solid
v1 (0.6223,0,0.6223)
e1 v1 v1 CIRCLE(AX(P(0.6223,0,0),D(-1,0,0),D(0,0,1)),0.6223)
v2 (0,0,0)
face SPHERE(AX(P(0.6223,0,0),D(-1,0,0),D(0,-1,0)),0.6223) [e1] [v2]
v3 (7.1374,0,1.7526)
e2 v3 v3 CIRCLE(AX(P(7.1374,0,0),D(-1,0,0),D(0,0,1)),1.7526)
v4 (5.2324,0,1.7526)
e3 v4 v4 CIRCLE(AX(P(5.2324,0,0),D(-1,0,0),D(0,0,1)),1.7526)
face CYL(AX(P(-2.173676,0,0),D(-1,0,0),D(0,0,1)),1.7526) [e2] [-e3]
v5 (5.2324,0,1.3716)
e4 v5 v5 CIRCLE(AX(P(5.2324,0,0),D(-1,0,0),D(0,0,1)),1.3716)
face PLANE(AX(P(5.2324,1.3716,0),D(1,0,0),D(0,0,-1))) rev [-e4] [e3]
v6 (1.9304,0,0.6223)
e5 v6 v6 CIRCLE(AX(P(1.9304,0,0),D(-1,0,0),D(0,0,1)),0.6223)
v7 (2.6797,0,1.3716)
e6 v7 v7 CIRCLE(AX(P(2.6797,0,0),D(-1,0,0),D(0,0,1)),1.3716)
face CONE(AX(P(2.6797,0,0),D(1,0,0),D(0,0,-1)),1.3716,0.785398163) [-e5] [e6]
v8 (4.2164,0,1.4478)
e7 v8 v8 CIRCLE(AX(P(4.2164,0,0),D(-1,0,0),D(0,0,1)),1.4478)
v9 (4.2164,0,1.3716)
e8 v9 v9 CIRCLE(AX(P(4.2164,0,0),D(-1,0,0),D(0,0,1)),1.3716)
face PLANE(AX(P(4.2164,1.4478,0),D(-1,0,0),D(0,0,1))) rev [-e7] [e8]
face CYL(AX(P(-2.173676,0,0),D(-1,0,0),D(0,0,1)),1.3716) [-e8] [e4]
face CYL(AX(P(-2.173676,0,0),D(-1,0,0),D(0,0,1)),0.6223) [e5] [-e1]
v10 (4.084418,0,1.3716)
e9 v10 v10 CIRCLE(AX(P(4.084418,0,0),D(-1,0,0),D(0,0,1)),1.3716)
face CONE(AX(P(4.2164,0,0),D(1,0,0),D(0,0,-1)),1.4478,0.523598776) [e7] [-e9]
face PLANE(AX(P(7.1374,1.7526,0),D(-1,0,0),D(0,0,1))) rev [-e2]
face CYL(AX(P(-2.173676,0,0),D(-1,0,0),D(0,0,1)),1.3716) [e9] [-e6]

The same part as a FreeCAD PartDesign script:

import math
import FreeCAD as App
import Part
import Sketcher

V = App.Vector
Q = App.Units.Quantity

doc = App.newDocument("Part")
body = doc.addObject("PartDesign::Body", "Body")

sketch1 = body.newObject("Sketcher::SketchObject", "Sketch")
sketch1.AttachmentSupport = (doc.getObject("XY_Plane"), [""])
sketch1.MapMode = "FlatFace"
sketch1.addGeometry([
    Part.LineSegment(V(0, 0.62, 0), V(0, 0, 0)),
    Part.LineSegment(V(0, 0, 0), V(7.14, 0, 0)),
    Part.LineSegment(V(7.14, 0, 0), V(7.14, 1.75, 0)),
    Part.LineSegment(V(7.14, 1.75, 0), V(5.23, 1.75, 0)),
    Part.LineSegment(V(5.23, 1.75, 0), V(5.23, 1.37, 0)),
    Part.LineSegment(V(5.23, 1.37, 0), V(4.22, 1.37, 0)),
    Part.LineSegment(V(4.22, 1.37, 0), V(4.22, 1.45, 0)),
    Part.LineSegment(V(4.22, 1.45, 0), V(4.08, 1.37, 0)),
    Part.LineSegment(V(4.08, 1.37, 0), V(2.68, 1.37, 0)),
    Part.LineSegment(V(2.68, 1.37, 0), V(1.93, 0.62, 0)),
    Part.LineSegment(V(1.93, 0.62, 0), V(0, 0.62, 0)),
], False)
sketch1.addConstraint([
    Sketcher.Constraint("Coincident", 0, 2, 1, 1),
    Sketcher.Constraint("Coincident", 1, 2, 2, 1),
    Sketcher.Constraint("Coincident", 2, 2, 3, 1),
    Sketcher.Constraint("Coincident", 3, 2, 4, 1),
    Sketcher.Constraint("Coincident", 4, 2, 5, 1),
    Sketcher.Constraint("Coincident", 5, 2, 6, 1),
    Sketcher.Constraint("Coincident", 6, 2, 7, 1),
    Sketcher.Constraint("Coincident", 7, 2, 8, 1),
    Sketcher.Constraint("Coincident", 8, 2, 9, 1),
    Sketcher.Constraint("Coincident", 9, 2, 10, 1),
    Sketcher.Constraint("Coincident", 10, 2, 0, 1),
    Sketcher.Constraint("Vertical", 0),
    Sketcher.Constraint("Horizontal", 1),
    Sketcher.Constraint("Vertical", 2),
    Sketcher.Constraint("Horizontal", 3),
    Sketcher.Constraint("Vertical", 4),
    Sketcher.Constraint("Horizontal", 5),
    Sketcher.Constraint("Vertical", 6),
    Sketcher.Constraint("Horizontal", 8),
    Sketcher.Constraint("Horizontal", 10),
    Sketcher.Constraint("Coincident", 0, 2, -1, 1),
    Sketcher.Constraint("Horizontal", 5, 2, 7, 2),
    Sketcher.Constraint("Angle", 7, Q("-150 deg")),
    Sketcher.Constraint("Angle", 9, Q("-135 deg")),
    Sketcher.Constraint("DistanceX", 5, 2, 5, 1, Q("0.04 in")),
    Sketcher.Constraint("DistanceX", 1, 1, 1, 2, Q("0.281 in")),
    Sketcher.Constraint("DistanceX", 3, 2, 3, 1, Q("0.075 in")),
    Sketcher.Constraint("DistanceX", 10, 2, 10, 1, Q("0.076 in")),
    Sketcher.Constraint("DistanceY", 2, 1, 2, 2, Q("0.069 in")),
    Sketcher.Constraint("DistanceY", 4, 2, 4, 1, Q("0.015 in")),
    Sketcher.Constraint("DistanceY", 6, 1, 6, 2, Q("0.003 in")),
    Sketcher.Constraint("DistanceY", 0, 2, 0, 1, Q("0.0245 in")),
])
revolution = body.newObject("PartDesign::Revolution", "Revolution")
revolution.Profile = sketch1
revolution.ReferenceAxis = (sketch1, ["H_Axis"])
revolution.Angle = 360

sketch2 = body.newObject("Sketcher::SketchObject", "Sketch001")
sketch2.AttachmentSupport = (doc.getObject("XY_Plane"), [""])
sketch2.MapMode = "FlatFace"
sketch2.addGeometry([
    Part.LineSegment(V(0.62, 0.62, 0), V(-0.24, 0.62, 0)),
    Part.LineSegment(V(-0.24, 0.62, 0), V(-0.24, 0, 0)),
    Part.LineSegment(V(-0.24, 0, 0), V(0, 0, 0)),
    Part.ArcOfCircle(Part.Circle(V(0.62, 0, 0), V(0, 0, 1), 0.62), math.radians(90), math.radians(180)),
], False)
sketch2.addConstraint([
    Sketcher.Constraint("Coincident", 0, 2, 1, 1),
    Sketcher.Constraint("Coincident", 1, 2, 2, 1),
    Sketcher.Constraint("Coincident", 2, 2, 3, 2),
    Sketcher.Constraint("Tangent", 3, 1, 0, 1),
    Sketcher.Constraint("Horizontal", 0),
    Sketcher.Constraint("Vertical", 1),
    Sketcher.Constraint("Horizontal", 2),
    Sketcher.Constraint("Coincident", 2, 2, -1, 1),
    Sketcher.Constraint("PointOnObject", 3, 3, -1),
    Sketcher.Constraint("Radius", 3, Q("0.0245 in")),
    Sketcher.Constraint("DistanceX", 0, 2, 0, 1, 0.859975),
])
groove = body.newObject("PartDesign::Groove", "Groove")
groove.Profile = sketch2
groove.ReferenceAxis = (sketch2, ["H_Axis"])
groove.Angle = 360

doc.recompute()
